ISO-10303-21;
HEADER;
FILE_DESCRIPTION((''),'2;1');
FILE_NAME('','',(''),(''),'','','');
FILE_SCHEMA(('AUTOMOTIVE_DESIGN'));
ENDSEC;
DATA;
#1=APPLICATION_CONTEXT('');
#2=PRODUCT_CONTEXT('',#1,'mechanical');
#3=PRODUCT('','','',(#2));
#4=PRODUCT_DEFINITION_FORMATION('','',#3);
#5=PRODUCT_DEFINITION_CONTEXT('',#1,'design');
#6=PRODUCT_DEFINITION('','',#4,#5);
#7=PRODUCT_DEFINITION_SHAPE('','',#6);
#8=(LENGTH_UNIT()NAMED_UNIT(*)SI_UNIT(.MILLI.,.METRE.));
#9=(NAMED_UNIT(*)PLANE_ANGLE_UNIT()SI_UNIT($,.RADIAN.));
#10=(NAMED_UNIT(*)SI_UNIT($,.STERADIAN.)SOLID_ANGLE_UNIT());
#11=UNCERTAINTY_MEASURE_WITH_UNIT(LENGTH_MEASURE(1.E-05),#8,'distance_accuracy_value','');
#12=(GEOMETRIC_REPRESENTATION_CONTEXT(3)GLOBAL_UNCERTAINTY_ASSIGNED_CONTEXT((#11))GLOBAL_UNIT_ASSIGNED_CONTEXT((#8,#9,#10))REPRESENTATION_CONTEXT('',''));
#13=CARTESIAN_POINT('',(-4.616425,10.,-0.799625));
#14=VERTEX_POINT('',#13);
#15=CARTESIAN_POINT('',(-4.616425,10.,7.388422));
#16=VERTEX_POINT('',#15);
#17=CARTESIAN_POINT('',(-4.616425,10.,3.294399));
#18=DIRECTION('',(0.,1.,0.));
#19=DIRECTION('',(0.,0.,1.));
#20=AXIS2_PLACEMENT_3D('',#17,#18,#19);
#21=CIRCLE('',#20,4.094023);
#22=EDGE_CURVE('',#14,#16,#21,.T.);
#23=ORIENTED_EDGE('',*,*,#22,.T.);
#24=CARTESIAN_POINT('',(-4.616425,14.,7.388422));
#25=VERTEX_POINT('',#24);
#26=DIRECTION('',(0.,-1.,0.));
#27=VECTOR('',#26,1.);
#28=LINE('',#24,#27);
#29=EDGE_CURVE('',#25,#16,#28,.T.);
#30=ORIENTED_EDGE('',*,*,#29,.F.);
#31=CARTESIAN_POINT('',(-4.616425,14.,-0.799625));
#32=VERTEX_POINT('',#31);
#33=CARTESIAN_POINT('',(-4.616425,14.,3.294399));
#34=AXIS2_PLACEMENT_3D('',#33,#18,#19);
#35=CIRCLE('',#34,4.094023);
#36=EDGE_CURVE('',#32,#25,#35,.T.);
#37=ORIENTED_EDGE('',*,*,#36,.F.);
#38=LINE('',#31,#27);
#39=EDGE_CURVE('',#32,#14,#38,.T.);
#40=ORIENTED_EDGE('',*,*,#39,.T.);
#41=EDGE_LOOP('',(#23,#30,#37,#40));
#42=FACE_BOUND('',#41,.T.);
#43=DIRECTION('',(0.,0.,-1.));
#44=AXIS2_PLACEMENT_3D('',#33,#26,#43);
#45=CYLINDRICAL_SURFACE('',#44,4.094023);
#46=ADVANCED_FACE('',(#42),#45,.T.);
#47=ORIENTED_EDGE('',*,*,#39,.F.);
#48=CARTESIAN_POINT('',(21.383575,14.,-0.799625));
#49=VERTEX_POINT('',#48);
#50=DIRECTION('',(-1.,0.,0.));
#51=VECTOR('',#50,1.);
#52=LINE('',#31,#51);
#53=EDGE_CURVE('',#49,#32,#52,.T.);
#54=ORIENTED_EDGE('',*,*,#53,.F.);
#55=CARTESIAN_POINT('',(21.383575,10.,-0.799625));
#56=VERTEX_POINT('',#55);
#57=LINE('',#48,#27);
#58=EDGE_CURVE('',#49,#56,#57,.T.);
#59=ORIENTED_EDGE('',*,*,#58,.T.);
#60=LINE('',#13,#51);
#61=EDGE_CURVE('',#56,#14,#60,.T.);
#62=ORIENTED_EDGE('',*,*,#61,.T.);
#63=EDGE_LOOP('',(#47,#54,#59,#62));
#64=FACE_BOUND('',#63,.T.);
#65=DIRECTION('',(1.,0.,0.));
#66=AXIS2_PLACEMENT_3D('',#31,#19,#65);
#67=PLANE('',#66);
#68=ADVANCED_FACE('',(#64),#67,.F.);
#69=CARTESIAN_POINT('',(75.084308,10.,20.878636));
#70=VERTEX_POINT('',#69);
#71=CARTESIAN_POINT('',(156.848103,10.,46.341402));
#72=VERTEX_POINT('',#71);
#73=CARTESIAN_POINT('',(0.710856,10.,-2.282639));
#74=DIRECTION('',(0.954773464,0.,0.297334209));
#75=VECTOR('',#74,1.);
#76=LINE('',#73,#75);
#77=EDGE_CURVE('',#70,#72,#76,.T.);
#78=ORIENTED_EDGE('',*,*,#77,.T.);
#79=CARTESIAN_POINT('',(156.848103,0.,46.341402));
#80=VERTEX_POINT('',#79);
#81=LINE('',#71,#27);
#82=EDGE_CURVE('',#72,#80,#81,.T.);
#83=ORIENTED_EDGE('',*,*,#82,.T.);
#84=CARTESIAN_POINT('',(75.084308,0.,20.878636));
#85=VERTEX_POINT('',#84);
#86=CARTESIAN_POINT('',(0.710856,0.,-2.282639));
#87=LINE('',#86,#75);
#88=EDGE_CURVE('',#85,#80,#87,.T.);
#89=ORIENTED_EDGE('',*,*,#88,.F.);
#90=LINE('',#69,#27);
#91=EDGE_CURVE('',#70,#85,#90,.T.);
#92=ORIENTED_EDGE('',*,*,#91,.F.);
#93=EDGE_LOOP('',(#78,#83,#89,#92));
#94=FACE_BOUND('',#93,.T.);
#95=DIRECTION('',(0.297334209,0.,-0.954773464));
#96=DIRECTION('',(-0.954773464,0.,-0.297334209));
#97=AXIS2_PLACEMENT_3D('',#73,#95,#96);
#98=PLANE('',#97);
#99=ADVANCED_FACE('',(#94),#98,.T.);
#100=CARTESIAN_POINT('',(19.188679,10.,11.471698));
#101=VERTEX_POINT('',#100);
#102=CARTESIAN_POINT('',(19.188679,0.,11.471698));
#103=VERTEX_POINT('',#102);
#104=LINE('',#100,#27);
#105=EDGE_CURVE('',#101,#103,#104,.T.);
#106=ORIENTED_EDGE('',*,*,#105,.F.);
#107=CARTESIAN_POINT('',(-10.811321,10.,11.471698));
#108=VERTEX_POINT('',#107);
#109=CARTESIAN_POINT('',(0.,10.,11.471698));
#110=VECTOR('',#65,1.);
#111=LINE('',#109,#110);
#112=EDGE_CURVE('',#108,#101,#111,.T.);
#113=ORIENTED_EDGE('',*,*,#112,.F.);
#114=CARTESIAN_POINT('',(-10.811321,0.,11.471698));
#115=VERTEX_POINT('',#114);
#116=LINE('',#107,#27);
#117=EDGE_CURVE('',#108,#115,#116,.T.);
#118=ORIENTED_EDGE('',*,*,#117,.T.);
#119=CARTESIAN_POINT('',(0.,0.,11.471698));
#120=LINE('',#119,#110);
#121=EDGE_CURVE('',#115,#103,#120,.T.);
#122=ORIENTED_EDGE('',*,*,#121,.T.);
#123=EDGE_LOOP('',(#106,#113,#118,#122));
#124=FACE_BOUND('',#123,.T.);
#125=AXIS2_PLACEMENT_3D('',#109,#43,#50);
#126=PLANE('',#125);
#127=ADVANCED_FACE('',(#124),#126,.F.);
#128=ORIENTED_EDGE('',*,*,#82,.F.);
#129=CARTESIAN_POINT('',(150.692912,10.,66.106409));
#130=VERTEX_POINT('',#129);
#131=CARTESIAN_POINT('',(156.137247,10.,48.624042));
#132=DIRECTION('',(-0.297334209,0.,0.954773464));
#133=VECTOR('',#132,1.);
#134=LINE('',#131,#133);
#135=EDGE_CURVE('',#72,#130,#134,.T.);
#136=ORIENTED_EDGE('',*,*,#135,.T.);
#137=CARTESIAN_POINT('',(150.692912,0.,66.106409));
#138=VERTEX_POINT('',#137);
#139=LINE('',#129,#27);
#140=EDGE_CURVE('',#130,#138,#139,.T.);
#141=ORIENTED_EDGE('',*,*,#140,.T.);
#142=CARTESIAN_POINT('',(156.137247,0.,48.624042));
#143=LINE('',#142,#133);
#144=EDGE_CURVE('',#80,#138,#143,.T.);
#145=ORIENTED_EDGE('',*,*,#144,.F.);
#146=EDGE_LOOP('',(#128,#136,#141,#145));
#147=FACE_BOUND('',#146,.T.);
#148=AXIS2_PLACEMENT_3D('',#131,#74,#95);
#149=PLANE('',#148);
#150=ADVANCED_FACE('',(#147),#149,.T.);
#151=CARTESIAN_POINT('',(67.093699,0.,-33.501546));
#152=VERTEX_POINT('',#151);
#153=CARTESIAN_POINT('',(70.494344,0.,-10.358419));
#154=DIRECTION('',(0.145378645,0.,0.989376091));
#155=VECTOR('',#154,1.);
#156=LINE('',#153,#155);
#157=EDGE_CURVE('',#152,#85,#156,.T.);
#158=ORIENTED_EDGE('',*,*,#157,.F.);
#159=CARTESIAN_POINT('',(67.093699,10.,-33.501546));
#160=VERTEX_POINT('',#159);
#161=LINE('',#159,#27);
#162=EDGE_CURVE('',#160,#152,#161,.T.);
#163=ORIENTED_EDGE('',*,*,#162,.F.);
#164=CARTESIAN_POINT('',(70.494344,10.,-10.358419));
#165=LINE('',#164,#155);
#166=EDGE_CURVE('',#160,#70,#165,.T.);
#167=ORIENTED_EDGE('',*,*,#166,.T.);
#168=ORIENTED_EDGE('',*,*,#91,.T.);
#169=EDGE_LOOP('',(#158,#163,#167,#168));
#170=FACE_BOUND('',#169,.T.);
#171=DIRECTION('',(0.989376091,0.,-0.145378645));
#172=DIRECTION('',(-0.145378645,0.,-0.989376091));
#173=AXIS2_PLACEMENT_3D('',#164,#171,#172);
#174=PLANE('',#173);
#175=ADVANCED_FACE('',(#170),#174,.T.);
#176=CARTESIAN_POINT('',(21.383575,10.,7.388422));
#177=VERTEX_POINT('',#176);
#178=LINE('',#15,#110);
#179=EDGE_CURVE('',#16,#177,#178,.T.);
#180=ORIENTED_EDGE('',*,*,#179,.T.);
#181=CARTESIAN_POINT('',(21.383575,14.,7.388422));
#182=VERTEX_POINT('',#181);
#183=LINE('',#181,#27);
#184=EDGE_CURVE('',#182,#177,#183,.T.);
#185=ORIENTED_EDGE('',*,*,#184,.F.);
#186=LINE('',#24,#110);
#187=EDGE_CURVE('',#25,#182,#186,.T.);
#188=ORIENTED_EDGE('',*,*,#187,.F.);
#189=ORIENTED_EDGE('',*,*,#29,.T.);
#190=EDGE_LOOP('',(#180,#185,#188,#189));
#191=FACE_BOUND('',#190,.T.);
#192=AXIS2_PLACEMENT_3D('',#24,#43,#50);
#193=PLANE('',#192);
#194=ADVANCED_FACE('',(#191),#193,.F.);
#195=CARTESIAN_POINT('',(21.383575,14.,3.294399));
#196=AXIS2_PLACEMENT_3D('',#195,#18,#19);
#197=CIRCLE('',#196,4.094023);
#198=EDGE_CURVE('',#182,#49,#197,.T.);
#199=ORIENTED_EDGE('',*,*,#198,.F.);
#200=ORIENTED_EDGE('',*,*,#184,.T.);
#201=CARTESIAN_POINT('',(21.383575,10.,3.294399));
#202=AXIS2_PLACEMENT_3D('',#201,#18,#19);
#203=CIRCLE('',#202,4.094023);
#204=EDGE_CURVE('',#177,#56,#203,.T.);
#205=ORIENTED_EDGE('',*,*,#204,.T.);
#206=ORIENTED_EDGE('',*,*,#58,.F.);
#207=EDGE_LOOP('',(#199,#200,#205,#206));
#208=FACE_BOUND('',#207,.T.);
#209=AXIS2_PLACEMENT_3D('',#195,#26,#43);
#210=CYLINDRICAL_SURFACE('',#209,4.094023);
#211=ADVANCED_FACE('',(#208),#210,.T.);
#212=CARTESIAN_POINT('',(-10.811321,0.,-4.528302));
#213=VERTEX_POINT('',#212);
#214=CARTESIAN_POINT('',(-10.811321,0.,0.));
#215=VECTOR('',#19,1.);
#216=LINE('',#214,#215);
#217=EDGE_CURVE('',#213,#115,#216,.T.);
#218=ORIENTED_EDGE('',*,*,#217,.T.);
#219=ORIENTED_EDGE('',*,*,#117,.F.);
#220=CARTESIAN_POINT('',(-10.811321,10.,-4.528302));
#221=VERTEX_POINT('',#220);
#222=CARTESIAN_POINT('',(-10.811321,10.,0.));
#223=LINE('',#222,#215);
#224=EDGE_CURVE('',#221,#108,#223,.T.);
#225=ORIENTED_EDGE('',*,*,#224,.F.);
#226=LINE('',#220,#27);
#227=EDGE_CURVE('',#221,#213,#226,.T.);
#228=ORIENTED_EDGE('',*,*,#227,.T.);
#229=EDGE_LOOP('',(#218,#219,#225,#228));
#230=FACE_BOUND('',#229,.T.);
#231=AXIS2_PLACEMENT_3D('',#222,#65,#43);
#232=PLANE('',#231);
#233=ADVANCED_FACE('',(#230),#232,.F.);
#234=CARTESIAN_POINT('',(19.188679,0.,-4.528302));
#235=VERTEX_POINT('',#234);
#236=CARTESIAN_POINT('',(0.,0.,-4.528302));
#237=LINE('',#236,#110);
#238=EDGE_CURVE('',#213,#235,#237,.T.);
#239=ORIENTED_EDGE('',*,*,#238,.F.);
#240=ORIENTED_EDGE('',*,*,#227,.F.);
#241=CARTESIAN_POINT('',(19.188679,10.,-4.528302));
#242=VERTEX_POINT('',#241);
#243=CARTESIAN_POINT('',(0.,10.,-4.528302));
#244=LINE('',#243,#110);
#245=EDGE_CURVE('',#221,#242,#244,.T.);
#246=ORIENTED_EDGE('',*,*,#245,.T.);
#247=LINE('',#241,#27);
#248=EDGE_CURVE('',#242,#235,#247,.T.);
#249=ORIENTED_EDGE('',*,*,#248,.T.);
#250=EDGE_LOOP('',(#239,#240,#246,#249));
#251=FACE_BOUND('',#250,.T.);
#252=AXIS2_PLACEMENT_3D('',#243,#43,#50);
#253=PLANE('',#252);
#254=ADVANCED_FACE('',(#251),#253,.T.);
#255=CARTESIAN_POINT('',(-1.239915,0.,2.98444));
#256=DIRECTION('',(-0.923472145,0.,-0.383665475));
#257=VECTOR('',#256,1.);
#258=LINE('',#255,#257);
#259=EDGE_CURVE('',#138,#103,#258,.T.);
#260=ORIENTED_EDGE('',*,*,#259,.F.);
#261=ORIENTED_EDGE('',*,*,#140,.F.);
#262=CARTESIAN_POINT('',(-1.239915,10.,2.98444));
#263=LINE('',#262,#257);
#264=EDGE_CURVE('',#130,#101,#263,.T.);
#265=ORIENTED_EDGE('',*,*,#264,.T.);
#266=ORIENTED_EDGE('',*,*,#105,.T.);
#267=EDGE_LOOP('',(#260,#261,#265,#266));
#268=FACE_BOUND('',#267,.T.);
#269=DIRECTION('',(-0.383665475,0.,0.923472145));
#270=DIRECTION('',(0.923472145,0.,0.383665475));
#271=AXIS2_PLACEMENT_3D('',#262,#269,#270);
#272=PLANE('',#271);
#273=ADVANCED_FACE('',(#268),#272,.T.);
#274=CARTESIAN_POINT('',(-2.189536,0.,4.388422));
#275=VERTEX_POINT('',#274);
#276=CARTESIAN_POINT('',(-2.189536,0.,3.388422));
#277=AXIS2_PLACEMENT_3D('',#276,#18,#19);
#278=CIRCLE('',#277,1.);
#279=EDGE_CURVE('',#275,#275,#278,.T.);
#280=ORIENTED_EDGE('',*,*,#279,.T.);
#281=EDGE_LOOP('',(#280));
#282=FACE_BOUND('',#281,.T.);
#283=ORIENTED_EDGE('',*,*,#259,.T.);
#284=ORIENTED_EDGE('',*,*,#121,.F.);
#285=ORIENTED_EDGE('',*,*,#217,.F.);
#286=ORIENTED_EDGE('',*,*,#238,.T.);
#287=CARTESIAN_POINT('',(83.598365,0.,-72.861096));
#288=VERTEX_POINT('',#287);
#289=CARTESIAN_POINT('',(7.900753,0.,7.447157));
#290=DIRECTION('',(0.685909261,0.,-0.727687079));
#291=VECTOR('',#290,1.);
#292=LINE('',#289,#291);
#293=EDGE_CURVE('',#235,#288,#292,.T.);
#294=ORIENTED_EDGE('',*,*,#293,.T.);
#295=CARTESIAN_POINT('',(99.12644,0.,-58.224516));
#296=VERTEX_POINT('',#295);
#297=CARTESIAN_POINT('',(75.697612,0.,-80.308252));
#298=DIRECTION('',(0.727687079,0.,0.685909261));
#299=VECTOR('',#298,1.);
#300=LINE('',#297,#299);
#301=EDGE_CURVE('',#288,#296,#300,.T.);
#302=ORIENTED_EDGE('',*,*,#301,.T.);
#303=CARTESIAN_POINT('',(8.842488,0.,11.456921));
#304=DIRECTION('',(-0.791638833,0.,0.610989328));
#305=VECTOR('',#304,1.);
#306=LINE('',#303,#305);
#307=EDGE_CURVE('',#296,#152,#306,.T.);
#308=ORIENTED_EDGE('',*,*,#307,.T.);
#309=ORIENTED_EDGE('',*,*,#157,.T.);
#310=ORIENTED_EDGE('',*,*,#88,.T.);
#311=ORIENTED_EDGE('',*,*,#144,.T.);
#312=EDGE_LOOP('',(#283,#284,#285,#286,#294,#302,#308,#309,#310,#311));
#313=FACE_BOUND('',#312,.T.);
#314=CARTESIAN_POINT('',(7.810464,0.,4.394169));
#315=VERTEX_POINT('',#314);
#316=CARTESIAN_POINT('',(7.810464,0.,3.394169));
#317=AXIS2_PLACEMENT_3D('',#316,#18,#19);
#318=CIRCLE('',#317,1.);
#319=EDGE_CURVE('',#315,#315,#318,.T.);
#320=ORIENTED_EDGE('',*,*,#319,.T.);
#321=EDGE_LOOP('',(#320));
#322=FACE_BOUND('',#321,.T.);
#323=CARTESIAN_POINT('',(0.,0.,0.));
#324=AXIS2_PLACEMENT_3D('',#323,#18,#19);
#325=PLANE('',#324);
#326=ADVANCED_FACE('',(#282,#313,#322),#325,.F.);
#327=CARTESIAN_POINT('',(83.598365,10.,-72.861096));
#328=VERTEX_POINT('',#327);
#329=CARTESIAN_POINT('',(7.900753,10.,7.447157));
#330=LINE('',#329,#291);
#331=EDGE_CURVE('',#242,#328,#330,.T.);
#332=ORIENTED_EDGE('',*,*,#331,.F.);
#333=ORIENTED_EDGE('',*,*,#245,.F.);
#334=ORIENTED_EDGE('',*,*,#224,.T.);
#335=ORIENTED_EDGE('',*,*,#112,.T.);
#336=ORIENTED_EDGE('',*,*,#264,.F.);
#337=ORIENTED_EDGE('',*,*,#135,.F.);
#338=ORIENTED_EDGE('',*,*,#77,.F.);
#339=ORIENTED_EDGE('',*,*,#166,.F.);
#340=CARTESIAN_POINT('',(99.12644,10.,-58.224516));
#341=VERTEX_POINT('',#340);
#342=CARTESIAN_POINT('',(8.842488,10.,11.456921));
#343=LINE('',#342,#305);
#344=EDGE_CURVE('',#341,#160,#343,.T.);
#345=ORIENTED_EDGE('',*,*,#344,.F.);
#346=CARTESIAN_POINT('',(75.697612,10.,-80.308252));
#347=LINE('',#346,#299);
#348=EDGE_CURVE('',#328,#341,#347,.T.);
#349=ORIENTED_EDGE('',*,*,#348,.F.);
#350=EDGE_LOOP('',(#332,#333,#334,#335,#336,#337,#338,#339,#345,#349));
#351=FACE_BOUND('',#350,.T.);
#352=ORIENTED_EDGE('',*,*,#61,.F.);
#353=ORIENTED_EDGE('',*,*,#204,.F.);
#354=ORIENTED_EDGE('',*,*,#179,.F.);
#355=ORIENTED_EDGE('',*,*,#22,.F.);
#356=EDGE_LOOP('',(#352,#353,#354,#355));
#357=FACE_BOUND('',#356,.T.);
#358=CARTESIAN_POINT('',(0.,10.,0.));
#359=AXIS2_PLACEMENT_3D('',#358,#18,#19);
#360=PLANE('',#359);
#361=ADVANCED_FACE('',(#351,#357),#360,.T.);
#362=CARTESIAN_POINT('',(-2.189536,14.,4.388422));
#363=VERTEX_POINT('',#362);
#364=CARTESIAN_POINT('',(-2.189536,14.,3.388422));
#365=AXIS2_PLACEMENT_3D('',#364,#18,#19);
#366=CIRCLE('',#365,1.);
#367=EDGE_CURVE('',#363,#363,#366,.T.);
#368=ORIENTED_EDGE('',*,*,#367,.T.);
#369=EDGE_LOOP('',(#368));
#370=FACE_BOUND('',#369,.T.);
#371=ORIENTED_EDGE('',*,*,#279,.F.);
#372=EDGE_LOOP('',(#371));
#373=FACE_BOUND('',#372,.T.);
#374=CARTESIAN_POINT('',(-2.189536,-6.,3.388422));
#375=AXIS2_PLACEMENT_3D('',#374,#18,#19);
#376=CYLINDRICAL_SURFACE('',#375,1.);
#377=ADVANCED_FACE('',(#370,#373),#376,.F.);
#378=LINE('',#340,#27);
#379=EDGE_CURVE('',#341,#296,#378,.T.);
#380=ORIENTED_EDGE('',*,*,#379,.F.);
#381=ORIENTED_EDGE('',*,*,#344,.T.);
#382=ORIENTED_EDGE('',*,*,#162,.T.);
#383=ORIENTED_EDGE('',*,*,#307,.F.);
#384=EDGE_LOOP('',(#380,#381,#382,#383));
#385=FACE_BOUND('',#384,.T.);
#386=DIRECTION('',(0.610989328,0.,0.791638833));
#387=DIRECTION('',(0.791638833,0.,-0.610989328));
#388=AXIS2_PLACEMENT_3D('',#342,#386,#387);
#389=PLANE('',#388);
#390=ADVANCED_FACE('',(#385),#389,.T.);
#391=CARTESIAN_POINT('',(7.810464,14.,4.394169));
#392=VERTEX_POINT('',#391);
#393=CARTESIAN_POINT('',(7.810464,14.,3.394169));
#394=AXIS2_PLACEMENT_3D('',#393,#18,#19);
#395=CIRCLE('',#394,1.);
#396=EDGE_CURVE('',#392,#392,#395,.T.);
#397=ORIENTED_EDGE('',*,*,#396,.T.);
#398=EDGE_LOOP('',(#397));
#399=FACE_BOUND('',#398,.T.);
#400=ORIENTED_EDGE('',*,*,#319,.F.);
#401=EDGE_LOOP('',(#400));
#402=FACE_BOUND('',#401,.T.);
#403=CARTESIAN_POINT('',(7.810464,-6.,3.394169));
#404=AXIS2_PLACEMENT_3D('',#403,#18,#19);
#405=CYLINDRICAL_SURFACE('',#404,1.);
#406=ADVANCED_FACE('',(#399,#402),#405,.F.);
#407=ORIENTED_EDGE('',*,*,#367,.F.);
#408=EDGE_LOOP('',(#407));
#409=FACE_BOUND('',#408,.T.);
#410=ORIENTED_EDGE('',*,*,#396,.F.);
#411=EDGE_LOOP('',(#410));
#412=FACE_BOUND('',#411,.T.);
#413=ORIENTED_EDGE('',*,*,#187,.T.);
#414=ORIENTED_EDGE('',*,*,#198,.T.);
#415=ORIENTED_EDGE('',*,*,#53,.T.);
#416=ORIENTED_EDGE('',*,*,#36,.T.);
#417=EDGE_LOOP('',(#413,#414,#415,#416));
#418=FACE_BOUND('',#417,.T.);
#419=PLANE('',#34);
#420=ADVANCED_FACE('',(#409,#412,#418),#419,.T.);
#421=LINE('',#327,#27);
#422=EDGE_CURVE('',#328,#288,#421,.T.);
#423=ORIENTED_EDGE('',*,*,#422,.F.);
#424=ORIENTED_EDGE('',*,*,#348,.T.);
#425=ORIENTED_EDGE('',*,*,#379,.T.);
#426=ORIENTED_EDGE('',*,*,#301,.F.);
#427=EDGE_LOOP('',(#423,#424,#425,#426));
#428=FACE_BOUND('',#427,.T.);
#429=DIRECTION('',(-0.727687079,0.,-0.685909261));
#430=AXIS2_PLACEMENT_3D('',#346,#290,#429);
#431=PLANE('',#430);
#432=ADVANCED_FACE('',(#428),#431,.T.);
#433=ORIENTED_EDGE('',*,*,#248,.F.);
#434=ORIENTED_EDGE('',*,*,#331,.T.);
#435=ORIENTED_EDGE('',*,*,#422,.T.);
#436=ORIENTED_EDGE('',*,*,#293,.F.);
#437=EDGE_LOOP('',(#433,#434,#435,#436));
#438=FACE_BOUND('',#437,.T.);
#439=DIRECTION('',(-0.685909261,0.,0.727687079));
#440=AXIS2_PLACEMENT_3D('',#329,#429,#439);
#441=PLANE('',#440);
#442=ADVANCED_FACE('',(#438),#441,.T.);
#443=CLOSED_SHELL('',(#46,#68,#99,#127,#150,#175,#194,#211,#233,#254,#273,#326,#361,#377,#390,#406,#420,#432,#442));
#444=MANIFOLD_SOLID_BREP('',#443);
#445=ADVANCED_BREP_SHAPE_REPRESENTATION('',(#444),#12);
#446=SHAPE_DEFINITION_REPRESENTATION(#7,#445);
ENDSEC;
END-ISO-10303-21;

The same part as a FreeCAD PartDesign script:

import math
import FreeCAD as App
import Part
import Sketcher

V = App.Vector


def add_polygon(sketch, points):
    """Adds a closed chain of lines whose ends are joined by coincident constraints."""
    first, n = sketch.GeometryCount, len(points)
    for a, b in zip(points, points[1:] + points[:1]):
        sketch.addGeometry(Part.LineSegment(App.Vector(*a, 0), App.Vector(*b, 0)), False)
    for i in range(n):
        sketch.addConstraint(Sketcher.Constraint("Coincident", first + i, 2, first + (i + 1) % n, 1))

doc = App.newDocument("Part")
body = doc.addObject("PartDesign::Body", "Body")

# Sketch on XZ plane
sketch1 = body.newObject("Sketcher::SketchObject", "Sketch")
sketch1.AttachmentSupport = (doc.getObject("XZ_Plane"), [""])
sketch1.MapMode = "FlatFace"
add_polygon(sketch1, [(84, -73), (19, -5), (-11, -5), (-11, 11), (19, 11), (151, 66), (157, 46), (75, 21), (67, -34), (99, -58)])  # lines 0-9
sketch1.addConstraint(Sketcher.Constraint("Horizontal", 1))
sketch1.addConstraint(Sketcher.Constraint("Vertical", 2))
sketch1.addConstraint(Sketcher.Constraint("Horizontal", 3))
sketch1.addConstraint(Sketcher.Constraint("Perpendicular", 5, 6))
sketch1.addConstraint(Sketcher.Constraint("Perpendicular", 0, 9))
sketch1.addConstraint(Sketcher.Constraint("Vertical", 0, 2, 3, 2))
sketch1.addConstraint(Sketcher.Constraint("DistanceX", 1, 2, 1, 1, 30.0))
sketch1.addConstraint(Sketcher.Constraint("DistanceY", 2, 1, 2, 2, 16.0))
sketch1.addConstraint(Sketcher.Constraint("DistanceY", 0, 2, -1, 1, 4.528302))
sketch1.addConstraint(Sketcher.Constraint("DistanceX", -1, 1, 7, 2, 67.093699))
sketch1.addConstraint(Sketcher.Constraint("Distance", 0, 93.904091))
sketch1.addConstraint(Sketcher.Constraint("Distance", 4, 142.401949))
sketch1.addConstraint(Sketcher.Constraint("Distance", 8, 40.463832))
sketch1.addConstraint(Sketcher.Constraint("DistanceX", -1, 1, 0, 2, 19.188679))
sketch1.addConstraint(Sketcher.Constraint("DistanceY", -1, 1, 4, 2, 66.106409))
sketch1.addConstraint(Sketcher.Constraint("DistanceX", -1, 1, 8, 2, 99.12644))
sketch1.addConstraint(Sketcher.Constraint("DistanceX", 4, 2, 5, 2, 6.155191))
sketch1.addConstraint(Sketcher.Constraint("DistanceX", 3, 2, 6, 2, 55.895629))
sketch1.addConstraint(Sketcher.Constraint("DistanceY", 3, 2, 6, 2, 9.406938))
sketch1.addConstraint(Sketcher.Constraint("DistanceY", 8, 2, 6, 2, 79.103152))
pad1 = body.newObject("PartDesign::Pad", "Pad")
pad1.Profile = sketch1
pad1.Length = 10
pad1.Reversed = True

# Sketch on XZ plane
sketch2 = body.newObject("Sketcher::SketchObject", "Sketch001")
sketch2.AttachmentSupport = (doc.getObject("XZ_Plane"), [""])
sketch2.MapMode = "FlatFace"
sketch2.AttachmentOffset = App.Placement(V(0, 0, -10), App.Rotation())
sketch2.addGeometry(Part.LineSegment(V(21.4, -0.8, 0), V(-4.6, -0.8, 0)), False)
sketch2.addGeometry(Part.ArcOfCircle(Part.Circle(V(-4.6, 3.3, 0), V(0, 0, 1), 4.1), math.radians(90), math.radians(270)), False)
sketch2.addGeometry(Part.LineSegment(V(-4.6, 7.4, 0), V(21.4, 7.4, 0)), False)
sketch2.addGeometry(Part.ArcOfCircle(Part.Circle(V(21.4, 3.3, 0), V(0, 0, 1), 4.1), math.radians(-90), math.radians(90)), False)
sketch2.addConstraint(Sketcher.Constraint("Tangent", 0, 2, 1, 2))
sketch2.addConstraint(Sketcher.Constraint("Tangent", 1, 1, 2, 1))
sketch2.addConstraint(Sketcher.Constraint("Tangent", 2, 2, 3, 2))
sketch2.addConstraint(Sketcher.Constraint("Tangent", 3, 1, 0, 1))
sketch2.addConstraint(Sketcher.Constraint("Horizontal", 0))
sketch2.addConstraint(Sketcher.Constraint("Horizontal", 2))
sketch2.addConstraint(Sketcher.Constraint("DistanceX", 0, 2, 0, 1, 26.0))
sketch2.addConstraint(Sketcher.Constraint("Radius", 1, 4.094023))
sketch2.addConstraint(Sketcher.Constraint("DistanceY", -1, 1, 1, 3, 3.294399))
sketch2.addConstraint(Sketcher.Constraint("DistanceX", 1, 3, -1, 1, 4.616425))
pad2 = body.newObject("PartDesign::Pad", "Pad001")
pad2.Profile = sketch2
pad2.Length = 4
pad2.Reversed = True

# Sketch on XZ plane
sketch3 = body.newObject("Sketcher::SketchObject", "Sketch002")
sketch3.AttachmentSupport = (doc.getObject("XZ_Plane"), [""])
sketch3.MapMode = "FlatFace"
sketch3.AttachmentOffset = App.Placement(V(0, 0, -14), App.Rotation())
sketch3.addGeometry(Part.Circle(V(-2.2, 3.4, 0), V(0, 0, 1), 1), False)
sketch3.addGeometry(Part.Circle(V(7.8, 3.4, 0), V(0, 0, 1), 1), False)
sketch3.addConstraint(Sketcher.Constraint("Equal", 0, 1))
sketch3.addConstraint(Sketcher.Constraint("Diameter", 0, 2.0))
sketch3.addConstraint(Sketcher.Constraint("DistanceX", 0, 3, 1, 3, 10.0))
sketch3.addConstraint(Sketcher.Constraint("DistanceY", -1, 1, 1, 3, 3.394169))
sketch3.addConstraint(Sketcher.Constraint("DistanceX", 0, 3, -1, 1, 2.189536))
sketch3.addConstraint(Sketcher.Constraint("DistanceY", -1, 1, 0, 3, 3.388422))
pocket1 = body.newObject("PartDesign::Pocket", "Pocket")
pocket1.Profile = sketch3
pocket1.Length = 20
pocket1.Reversed = True

doc.recompute()
